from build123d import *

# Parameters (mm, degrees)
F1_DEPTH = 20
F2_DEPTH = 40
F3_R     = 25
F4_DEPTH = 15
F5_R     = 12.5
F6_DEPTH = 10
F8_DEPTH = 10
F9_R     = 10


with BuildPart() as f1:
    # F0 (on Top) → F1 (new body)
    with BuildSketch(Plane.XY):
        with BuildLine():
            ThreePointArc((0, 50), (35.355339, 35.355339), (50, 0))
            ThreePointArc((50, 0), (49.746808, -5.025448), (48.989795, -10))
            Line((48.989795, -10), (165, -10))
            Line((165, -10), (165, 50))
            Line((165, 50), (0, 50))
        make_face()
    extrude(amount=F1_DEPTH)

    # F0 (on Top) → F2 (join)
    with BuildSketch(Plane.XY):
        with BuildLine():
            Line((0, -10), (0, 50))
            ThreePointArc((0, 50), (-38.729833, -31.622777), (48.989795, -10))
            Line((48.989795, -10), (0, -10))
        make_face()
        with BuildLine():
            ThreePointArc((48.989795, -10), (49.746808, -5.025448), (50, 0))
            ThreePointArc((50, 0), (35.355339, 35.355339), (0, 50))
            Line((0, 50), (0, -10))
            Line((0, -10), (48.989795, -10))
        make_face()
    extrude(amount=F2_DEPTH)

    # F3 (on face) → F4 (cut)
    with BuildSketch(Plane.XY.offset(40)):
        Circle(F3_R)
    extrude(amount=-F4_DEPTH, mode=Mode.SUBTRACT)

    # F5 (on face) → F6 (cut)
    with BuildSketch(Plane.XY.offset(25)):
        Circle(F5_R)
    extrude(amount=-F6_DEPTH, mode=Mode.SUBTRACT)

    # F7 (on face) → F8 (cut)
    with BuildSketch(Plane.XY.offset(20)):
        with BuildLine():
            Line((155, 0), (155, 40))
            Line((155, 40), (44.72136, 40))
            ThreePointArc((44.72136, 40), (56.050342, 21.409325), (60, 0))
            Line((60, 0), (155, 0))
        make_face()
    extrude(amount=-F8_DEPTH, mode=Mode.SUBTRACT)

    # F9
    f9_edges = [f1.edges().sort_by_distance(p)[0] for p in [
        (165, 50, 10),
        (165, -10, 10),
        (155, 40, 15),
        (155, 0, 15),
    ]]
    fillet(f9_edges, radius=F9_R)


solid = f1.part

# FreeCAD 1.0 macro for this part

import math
import FreeCAD as App
import Part
import Sketcher


def edges_at(feature, points):
    """Names of the edges that pass closest to the given points."""
    edges = feature.Shape.Edges
    near = lambda p: min(range(len(edges)), key=lambda i: edges[i].distToShape(Part.Vertex(*p))[0])
    return sorted({f"Edge{near(p) + 1}" for p in points})

doc = App.newDocument("Part")
body = doc.addObject("PartDesign::Body", "Body")

sketch1 = body.newObject("Sketcher::SketchObject", "Sketch")
sketch1.AttachmentSupport = (doc.getObject("XY_Plane"), [""])
sketch1.MapMode = "FlatFace"
sketch1.addGeometry([
    Part.ArcOfCircle(Part.Circle(App.Vector(0, 0, 0), App.Vector(0, 0, 1), 50), math.radians(0), math.radians(90)),
    Part.ArcOfCircle(Part.Circle(App.Vector(0, 0, 0), App.Vector(0, 0, 1), 50), math.radians(-11.54), math.radians(0)),
    Part.LineSegment(App.Vector(49, -10, 0), App.Vector(165, -10, 0)),
    Part.LineSegment(App.Vector(165, -10, 0), App.Vector(165, 50, 0)),
    Part.LineSegment(App.Vector(165, 50, 0), App.Vector(0, 50, 0)),
], False)
sketch1.addConstraint([
    Sketcher.Constraint("Tangent", 0, 1, 1, 2),
    Sketcher.Constraint("Coincident", 1, 1, 2, 1),
    Sketcher.Constraint("Coincident", 2, 2, 3, 1),
    Sketcher.Constraint("Coincident", 3, 2, 4, 1),
    Sketcher.Constraint("Tangent", 4, 2, 0, 2),
    Sketcher.Constraint("Horizontal", 2),
    Sketcher.Constraint("Vertical", 3),
    Sketcher.Constraint("Horizontal", 4),
    Sketcher.Constraint("Coincident", 0, 3, -1, 1),
    Sketcher.Constraint("PointOnObject", 0, 1, -1),
    Sketcher.Constraint("Radius", 0, 50.0),
    Sketcher.Constraint("DistanceX", 4, 2, 4, 1, 165.0),
    Sketcher.Constraint("DistanceY", 3, 1, 3, 2, 60.0),
    Sketcher.Constraint("Radius", 1, 49.999948),
])
pad1 = body.newObject("PartDesign::Pad", "Pad")
pad1.Profile = sketch1
pad1.Length = 20

sketch2 = body.newObject("Sketcher::SketchObject", "Sketch001")
sketch2.AttachmentSupport = (doc.getObject("XY_Plane"), [""])
sketch2.MapMode = "FlatFace"
sketch2.addGeometry([
    Part.ArcOfCircle(Part.Circle(App.Vector(0, 0, 0), App.Vector(0, 0, 1), 50), math.radians(90), math.radians(348.463041)),
    Part.ArcOfCircle(Part.Circle(App.Vector(0.000052, -0.000006, 0), App.Vector(0, 0, 1), 49.999948), math.radians(-11.536964), math.radians(0.000007)),
    Part.ArcOfCircle(Part.Circle(App.Vector(0, 0, 0), App.Vector(0, 0, 1), 50), math.radians(0), math.radians(90)),
], False)
sketch2.addConstraint([
    Sketcher.Constraint("Coincident", 0, 2, 1, 1),
    Sketcher.Constraint("Coincident", 1, 2, 2, 1),
    Sketcher.Constraint("Coincident", 2, 2, 0, 1),
    Sketcher.Constraint("Coincident", 0, 3, -1, 1),
    Sketcher.Constraint("Coincident", 2, 3, -1, 1),
    Sketcher.Constraint("PointOnObject", 1, 2, -1),
    Sketcher.Constraint("PointOnObject", 2, 2, -2),
    Sketcher.Constraint("Radius", 0, 50.0),
    Sketcher.Constraint("DistanceY", 0, 2, -1, 1, 10.0),
    Sketcher.Constraint("Radius", 1, 49.999948),
])
pad2 = body.newObject("PartDesign::Pad", "Pad001")
pad2.Profile = sketch2
pad2.Length = 40

sketch3 = body.newObject("Sketcher::SketchObject", "Sketch002")
sketch3.AttachmentSupport = (doc.getObject("XY_Plane"), [""])
sketch3.MapMode = "FlatFace"
sketch3.AttachmentOffset = App.Placement(App.Vector(0, 0, 40), App.Rotation())
sketch3.addGeometry(Part.Circle(App.Vector(0, 0, 0), App.Vector(0, 0, 1), 25), False)
sketch3.addConstraint([
    Sketcher.Constraint("Coincident", 0, 3, -1, 1),
    Sketcher.Constraint("Diameter", 0, 50.0),
])
pocket1 = body.newObject("PartDesign::Pocket", "Pocket")
pocket1.Profile = sketch3
pocket1.Length = 15

sketch4 = body.newObject("Sketcher::SketchObject", "Sketch003")
sketch4.AttachmentSupport = (doc.getObject("XY_Plane"), [""])
sketch4.MapMode = "FlatFace"
sketch4.AttachmentOffset = App.Placement(App.Vector(0, 0, 25), App.Rotation())
sketch4.addGeometry(Part.Circle(App.Vector(0, 0, 0), App.Vector(0, 0, 1), 12), False)
sketch4.addConstraint([
    Sketcher.Constraint("Coincident", 0, 3, -1, 1),
    Sketcher.Constraint("Diameter", 0, 25.0),
])
pocket2 = body.newObject("PartDesign::Pocket", "Pocket001")
pocket2.Profile = sketch4
pocket2.Length = 10

sketch5 = body.newObject("Sketcher::SketchObject", "Sketch004")
sketch5.AttachmentSupport = (doc.getObject("XY_Plane"), [""])
sketch5.MapMode = "FlatFace"
sketch5.AttachmentOffset = App.Placement(App.Vector(0, 0, 20), App.Rotation())
sketch5.addGeometry([
    Part.LineSegment(App.Vector(155, 0, 0), App.Vector(155, 40, 0)),
    Part.LineSegment(App.Vector(155, 40, 0), App.Vector(45, 40, 0)),
    Part.ArcOfCircle(Part.Circle(App.Vector(0, 0, 0), App.Vector(0, 0, 1), 60), math.radians(0), math.radians(42)),
    Part.LineSegment(App.Vector(60, 0, 0), App.Vector(155, 0, 0)),
], False)
sketch5.addConstraint([
    Sketcher.Constraint("Coincident", 0, 2, 1, 1),
    Sketcher.Constraint("Coincident", 1, 2, 2, 2),
    Sketcher.Constraint("Coincident", 2, 1, 3, 1),
    Sketcher.Constraint("Coincident", 3, 2, 0, 1),
    Sketcher.Constraint("Vertical", 0),
    Sketcher.Constraint("Horizontal", 1),
    Sketcher.Constraint("Horizontal", 3),
    Sketcher.Constraint("Coincident", 2, 3, -1, 1),
    Sketcher.Constraint("PointOnObject", 2, 1, -1),
    Sketcher.Constraint("Radius", 2, 59.999998),
    Sketcher.Constraint("DistanceX", 3, 1, 3, 2, 95.0),
    Sketcher.Constraint("DistanceY", 0, 1, 0, 2, 40.0),
])
pocket3 = body.newObject("PartDesign::Pocket", "Pocket002")
pocket3.Profile = sketch5
pocket3.Length = 10
doc.recompute()

fillet = body.newObject("PartDesign::Fillet", "Fillet")
fillet.Base = (pocket3, edges_at(pocket3, [
    (165, 50, 10),
    (165, -10, 10),
    (155, 40, 15),
    (155, 0, 15),
]))
fillet.Radius = 10

doc.recompute()
